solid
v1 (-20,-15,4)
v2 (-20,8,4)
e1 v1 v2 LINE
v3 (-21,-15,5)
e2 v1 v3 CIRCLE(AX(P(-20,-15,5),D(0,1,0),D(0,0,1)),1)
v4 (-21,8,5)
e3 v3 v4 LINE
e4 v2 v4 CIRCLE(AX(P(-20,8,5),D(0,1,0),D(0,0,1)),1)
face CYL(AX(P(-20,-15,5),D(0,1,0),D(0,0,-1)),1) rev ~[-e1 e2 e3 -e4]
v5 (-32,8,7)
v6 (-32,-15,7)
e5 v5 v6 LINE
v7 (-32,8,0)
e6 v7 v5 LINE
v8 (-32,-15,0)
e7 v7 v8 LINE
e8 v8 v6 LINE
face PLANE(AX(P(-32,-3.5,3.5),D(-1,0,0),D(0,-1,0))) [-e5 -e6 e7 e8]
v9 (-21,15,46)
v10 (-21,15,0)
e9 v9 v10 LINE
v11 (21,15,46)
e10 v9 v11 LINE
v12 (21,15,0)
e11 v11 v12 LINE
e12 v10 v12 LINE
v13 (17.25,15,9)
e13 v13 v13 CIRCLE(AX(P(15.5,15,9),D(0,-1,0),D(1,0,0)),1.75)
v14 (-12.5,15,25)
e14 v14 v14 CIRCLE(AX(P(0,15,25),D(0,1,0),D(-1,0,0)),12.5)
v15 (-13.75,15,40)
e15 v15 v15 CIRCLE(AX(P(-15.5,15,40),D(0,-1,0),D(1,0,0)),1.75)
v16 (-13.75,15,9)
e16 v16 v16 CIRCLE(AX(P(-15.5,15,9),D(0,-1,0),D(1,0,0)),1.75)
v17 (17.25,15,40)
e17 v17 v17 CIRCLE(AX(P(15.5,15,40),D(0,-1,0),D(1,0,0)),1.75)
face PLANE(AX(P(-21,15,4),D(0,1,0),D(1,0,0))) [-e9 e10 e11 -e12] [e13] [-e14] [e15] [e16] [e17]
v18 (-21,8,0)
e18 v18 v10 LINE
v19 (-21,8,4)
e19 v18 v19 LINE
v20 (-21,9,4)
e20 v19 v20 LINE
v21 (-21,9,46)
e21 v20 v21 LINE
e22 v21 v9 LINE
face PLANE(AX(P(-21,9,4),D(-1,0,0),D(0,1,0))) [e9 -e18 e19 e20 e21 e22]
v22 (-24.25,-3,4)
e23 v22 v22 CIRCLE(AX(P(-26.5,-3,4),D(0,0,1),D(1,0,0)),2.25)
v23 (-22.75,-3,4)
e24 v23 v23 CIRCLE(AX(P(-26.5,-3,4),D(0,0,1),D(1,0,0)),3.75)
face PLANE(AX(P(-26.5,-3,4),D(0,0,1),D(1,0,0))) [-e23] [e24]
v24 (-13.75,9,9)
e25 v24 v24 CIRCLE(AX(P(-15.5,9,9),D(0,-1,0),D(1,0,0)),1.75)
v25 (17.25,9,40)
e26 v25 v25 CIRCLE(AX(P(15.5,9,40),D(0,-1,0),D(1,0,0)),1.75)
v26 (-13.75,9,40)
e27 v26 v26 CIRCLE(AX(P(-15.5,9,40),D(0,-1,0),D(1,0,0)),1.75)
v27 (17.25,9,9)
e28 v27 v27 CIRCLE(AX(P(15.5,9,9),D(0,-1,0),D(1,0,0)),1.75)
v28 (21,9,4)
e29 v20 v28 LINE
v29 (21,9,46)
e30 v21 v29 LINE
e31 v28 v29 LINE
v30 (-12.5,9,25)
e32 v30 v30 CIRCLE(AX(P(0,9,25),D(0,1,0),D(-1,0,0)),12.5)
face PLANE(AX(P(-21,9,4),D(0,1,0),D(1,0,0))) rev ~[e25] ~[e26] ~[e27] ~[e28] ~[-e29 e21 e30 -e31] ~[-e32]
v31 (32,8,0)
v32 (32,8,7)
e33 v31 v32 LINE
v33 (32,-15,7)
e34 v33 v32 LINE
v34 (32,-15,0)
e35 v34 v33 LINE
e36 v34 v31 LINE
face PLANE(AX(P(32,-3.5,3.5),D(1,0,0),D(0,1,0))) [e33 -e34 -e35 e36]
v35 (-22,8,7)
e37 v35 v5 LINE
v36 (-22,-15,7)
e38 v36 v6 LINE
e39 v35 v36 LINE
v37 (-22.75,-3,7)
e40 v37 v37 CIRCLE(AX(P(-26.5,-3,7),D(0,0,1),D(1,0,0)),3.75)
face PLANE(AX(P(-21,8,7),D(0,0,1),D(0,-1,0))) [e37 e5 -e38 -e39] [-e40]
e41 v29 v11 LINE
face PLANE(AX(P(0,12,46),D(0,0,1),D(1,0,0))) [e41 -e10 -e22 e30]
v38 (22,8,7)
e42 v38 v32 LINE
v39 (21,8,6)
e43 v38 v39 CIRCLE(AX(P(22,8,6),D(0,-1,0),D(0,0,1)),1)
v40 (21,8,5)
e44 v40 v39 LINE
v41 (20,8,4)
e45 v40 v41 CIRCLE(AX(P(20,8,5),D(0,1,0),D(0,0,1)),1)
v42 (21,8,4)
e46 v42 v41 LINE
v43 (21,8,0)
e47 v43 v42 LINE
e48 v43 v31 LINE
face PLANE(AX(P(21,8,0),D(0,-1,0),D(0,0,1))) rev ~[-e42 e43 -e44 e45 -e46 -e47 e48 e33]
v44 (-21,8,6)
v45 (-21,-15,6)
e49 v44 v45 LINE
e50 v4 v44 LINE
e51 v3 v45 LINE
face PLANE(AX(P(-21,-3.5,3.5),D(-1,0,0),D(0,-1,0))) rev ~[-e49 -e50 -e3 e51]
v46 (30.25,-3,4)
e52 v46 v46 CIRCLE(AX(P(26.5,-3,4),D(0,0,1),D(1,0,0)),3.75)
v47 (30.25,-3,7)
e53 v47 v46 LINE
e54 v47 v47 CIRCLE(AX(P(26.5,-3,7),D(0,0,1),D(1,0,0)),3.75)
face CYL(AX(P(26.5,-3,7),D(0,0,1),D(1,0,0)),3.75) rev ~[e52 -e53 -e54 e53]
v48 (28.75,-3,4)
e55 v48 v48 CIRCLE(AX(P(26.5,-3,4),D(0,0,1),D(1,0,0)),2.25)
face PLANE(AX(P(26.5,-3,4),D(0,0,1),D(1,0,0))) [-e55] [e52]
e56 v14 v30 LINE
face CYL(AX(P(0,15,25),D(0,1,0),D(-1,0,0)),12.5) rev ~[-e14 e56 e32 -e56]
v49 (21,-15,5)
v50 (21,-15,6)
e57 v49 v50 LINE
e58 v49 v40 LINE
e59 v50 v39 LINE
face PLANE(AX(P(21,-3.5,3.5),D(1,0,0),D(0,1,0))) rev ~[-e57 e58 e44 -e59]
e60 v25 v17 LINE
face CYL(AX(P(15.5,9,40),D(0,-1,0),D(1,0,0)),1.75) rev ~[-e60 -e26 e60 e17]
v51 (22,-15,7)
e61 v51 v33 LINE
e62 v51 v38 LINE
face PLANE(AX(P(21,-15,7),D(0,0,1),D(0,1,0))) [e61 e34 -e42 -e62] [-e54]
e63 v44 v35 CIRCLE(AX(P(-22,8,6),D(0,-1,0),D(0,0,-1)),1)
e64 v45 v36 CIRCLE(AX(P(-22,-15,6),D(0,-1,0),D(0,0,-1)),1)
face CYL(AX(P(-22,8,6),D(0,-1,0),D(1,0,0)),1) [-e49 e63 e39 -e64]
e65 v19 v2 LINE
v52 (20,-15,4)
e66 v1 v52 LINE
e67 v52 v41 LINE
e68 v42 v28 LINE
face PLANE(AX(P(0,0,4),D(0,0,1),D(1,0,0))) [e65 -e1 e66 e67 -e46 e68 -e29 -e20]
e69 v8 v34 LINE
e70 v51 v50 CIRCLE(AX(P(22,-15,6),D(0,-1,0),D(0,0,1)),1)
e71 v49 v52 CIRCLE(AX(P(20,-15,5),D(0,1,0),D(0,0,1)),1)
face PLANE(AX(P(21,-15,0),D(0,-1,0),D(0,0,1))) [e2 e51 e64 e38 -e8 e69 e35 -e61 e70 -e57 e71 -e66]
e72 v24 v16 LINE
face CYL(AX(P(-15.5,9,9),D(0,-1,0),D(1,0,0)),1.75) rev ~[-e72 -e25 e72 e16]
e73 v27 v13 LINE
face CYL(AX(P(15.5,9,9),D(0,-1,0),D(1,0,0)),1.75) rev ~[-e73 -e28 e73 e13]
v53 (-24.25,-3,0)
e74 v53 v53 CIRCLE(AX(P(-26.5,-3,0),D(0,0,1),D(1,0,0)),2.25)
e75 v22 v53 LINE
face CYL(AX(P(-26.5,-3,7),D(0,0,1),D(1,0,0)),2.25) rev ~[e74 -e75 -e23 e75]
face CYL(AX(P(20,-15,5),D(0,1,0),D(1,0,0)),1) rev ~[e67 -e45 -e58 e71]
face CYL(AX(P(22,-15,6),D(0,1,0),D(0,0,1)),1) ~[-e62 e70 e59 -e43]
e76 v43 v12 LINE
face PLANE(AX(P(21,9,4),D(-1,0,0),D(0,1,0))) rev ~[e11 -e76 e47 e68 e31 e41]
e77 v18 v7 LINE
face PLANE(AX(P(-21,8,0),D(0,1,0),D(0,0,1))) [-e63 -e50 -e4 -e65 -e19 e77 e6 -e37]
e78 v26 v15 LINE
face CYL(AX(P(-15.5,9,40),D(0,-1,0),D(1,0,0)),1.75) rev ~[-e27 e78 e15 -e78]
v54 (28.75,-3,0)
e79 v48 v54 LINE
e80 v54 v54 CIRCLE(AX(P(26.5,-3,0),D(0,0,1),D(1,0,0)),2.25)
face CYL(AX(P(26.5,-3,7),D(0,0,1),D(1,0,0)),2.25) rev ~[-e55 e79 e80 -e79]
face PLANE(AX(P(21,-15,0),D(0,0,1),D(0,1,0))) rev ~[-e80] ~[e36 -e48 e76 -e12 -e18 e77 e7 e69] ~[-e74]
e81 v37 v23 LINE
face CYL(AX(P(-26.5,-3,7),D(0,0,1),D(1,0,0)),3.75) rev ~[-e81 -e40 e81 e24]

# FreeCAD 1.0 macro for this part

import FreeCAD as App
import Part
import Sketcher

V = App.Vector
Q = App.Units.Quantity


def edges_at(feature, points):
    """Names of the edges that pass closest to the given points."""
    edges = feature.Shape.Edges
    near = lambda p: min(range(len(edges)), key=lambda i: edges[i].distToShape(Part.Vertex(*p))[0])
    return sorted({f"Edge{near(p) + 1}" for p in points})

doc = App.newDocument("Part")
body = doc.addObject("PartDesign::Body", "Body")

# Sketch on XY plane
sketch1 = doc.addObject("Sketcher::SketchObject", "Sketch")
body.addObject(sketch1)
sketch1.AttachmentSupport = (doc.XY_Plane, [""])
sketch1.MapMode = "FlatFace"
sketch1.addGeometry([
    Part.LineSegment(V(-21, 15, 0), V(-21, -15, 0)),
    Part.LineSegment(V(-21, -15, 0), V(21, -15, 0)),
    Part.LineSegment(V(21, -15, 0), V(21, 15, 0)),
    Part.LineSegment(V(21, 15, 0), V(-21, 15, 0)),
], False)
sketch1.addConstraint([
    Sketcher.Constraint("Coincident", 0, 2, 1, 1),
    Sketcher.Constraint("Coincident", 1, 2, 2, 1),
    Sketcher.Constraint("Coincident", 2, 2, 3, 1),
    Sketcher.Constraint("Coincident", 3, 2, 0, 1),
    Sketcher.Constraint("Vertical", 0),
    Sketcher.Constraint("Horizontal", 1),
    Sketcher.Constraint("Vertical", 2),
    Sketcher.Constraint("Horizontal", 3),
    Sketcher.Constraint("Symmetric", 0, 2, 2, 2, -1, 1),
    Sketcher.Constraint("DistanceX", 1, 1, 1, 2, Q("42 mm")),
    Sketcher.Constraint("DistanceY", 0, 2, 0, 1, Q("30 mm")),
])
pad1 = doc.addObject("PartDesign::Pad", "Pad")
body.addObject(pad1)
pad1.Profile = sketch1
pad1.Length = 4

# Sketch on XY plane
sketch2 = doc.addObject("Sketcher::SketchObject", "Sketch001")
body.addObject(sketch2)
sketch2.AttachmentSupport = (doc.XY_Plane, [""])
sketch2.MapMode = "FlatFace"
sketch2.AttachmentOffset = App.Placement(V(0, 0, 4), App.Rotation())
sketch2.addGeometry([
    Part.LineSegment(V(-21, 15, 0), V(-21, 9, 0)),
    Part.LineSegment(V(-21, 9, 0), V(21, 9, 0)),
    Part.LineSegment(V(21, 9, 0), V(21, 15, 0)),
    Part.LineSegment(V(21, 15, 0), V(-21, 15, 0)),
], False)
sketch2.addConstraint([
    Sketcher.Constraint("Coincident", 0, 2, 1, 1),
    Sketcher.Constraint("Coincident", 1, 2, 2, 1),
    Sketcher.Constraint("Coincident", 2, 2, 3, 1),
    Sketcher.Constraint("Coincident", 3, 2, 0, 1),
    Sketcher.Constraint("Vertical", 0),
    Sketcher.Constraint("Horizontal", 1),
    Sketcher.Constraint("Vertical", 2),
    Sketcher.Constraint("Horizontal", 3),
    Sketcher.Constraint("DistanceX", 1, 1, 1, 2, Q("42 mm")),
    Sketcher.Constraint("DistanceY", 0, 2, 0, 1, Q("6 mm")),
    Sketcher.Constraint("DistanceX", 0, 2, -1, 1, Q("21 mm")),
    Sketcher.Constraint("DistanceY", -1, 1, 0, 2, Q("9 mm")),
])
pad2 = doc.addObject("PartDesign::Pad", "Pad001")
body.addObject(pad2)
pad2.Profile = sketch2
pad2.Length = 42

# Sketch on XZ plane
sketch3 = doc.addObject("Sketcher::SketchObject", "Sketch002")
body.addObject(sketch3)
sketch3.AttachmentSupport = (doc.XZ_Plane, [""])
sketch3.MapMode = "FlatFace"
sketch3.AttachmentOffset = App.Placement(V(0, 0, -15), App.Rotation())
sketch3.addGeometry(Part.Circle(V(0, 25, 0), V(0, 0, 1), 12), False)
sketch3.addConstraint([
    Sketcher.Constraint("PointOnObject", 0, 3, -2),
    Sketcher.Constraint("Diameter", 0, Q("25 mm")),
    Sketcher.Constraint("DistanceY", -1, 1, 0, 3, Q("25 mm")),
])
pocket1 = doc.addObject("PartDesign::Pocket", "Pocket")
body.addObject(pocket1)
pocket1.Profile = sketch3
pocket1.Length = 6
pocket1.Reversed = True

# Sketch on XZ plane
sketch4 = doc.addObject("Sketcher::SketchObject", "Sketch003")
body.addObject(sketch4)
sketch4.AttachmentSupport = (doc.XZ_Plane, [""])
sketch4.MapMode = "FlatFace"
sketch4.AttachmentOffset = App.Placement(V(0, 0, -9), App.Rotation())
sketch4.addGeometry([
    Part.Circle(V(15.5, 9, 0), V(0, 0, 1), 1.8),
    Part.Circle(V(-15.5, 9, 0), V(0, 0, 1), 1.8),
    Part.Circle(V(15.5, 40, 0), V(0, 0, 1), 1.8),
    Part.Circle(V(-15.5, 40, 0), V(0, 0, 1), 1.8),
], False)
sketch4.addConstraint([
    Sketcher.Constraint("Equal", 0, 1),
    Sketcher.Constraint("Equal", 1, 2),
    Sketcher.Constraint("Equal", 2, 3),
    Sketcher.Constraint("Symmetric", 0, 3, 1, 3, -2),
    Sketcher.Constraint("Symmetric", 2, 3, 3, 3, -2),
    Sketcher.Constraint("Vertical", 0, 3, 2, 3),
    Sketcher.Constraint("Diameter", 0, Q("3.5 mm")),
    Sketcher.Constraint("DistanceY", -1, 1, 0, 3, Q("9 mm")),
    Sketcher.Constraint("DistanceY", -1, 1, 2, 3, Q("40 mm")),
    Sketcher.Constraint("DistanceX", 1, 3, 0, 3, Q("31 mm")),
])
pocket2 = doc.addObject("PartDesign::Pocket", "Pocket001")
body.addObject(pocket2)
pocket2.Profile = sketch4
pocket2.Length = 6

# Sketch on YZ plane
sketch5 = doc.addObject("Sketcher::SketchObject", "Sketch004")
body.addObject(sketch5)
sketch5.AttachmentSupport = (doc.YZ_Plane, [""])
sketch5.MapMode = "FlatFace"
sketch5.AttachmentOffset = App.Placement(V(0, 0, -21), App.Rotation())
sketch5.addGeometry([
    Part.LineSegment(V(8, 7, 0), V(8, 0, 0)),
    Part.LineSegment(V(8, 0, 0), V(-15, 0, 0)),
    Part.LineSegment(V(-15, 0, 0), V(-15, 7, 0)),
    Part.LineSegment(V(-15, 7, 0), V(8, 7, 0)),
], False)
sketch5.addConstraint([
    Sketcher.Constraint("Coincident", 0, 2, 1, 1),
    Sketcher.Constraint("Coincident", 1, 2, 2, 1),
    Sketcher.Constraint("Coincident", 2, 2, 3, 1),
    Sketcher.Constraint("Coincident", 3, 2, 0, 1),
    Sketcher.Constraint("Vertical", 0),
    Sketcher.Constraint("Horizontal", 1),
    Sketcher.Constraint("Vertical", 2),
    Sketcher.Constraint("Horizontal", 3),
    Sketcher.Constraint("PointOnObject", 0, 2, -1),
    Sketcher.Constraint("DistanceX", 1, 2, 1, 1, Q("23 mm")),
    Sketcher.Constraint("DistanceY", 0, 2, 0, 1, Q("7 mm")),
    Sketcher.Constraint("DistanceX", -1, 1, 0, 2, Q("8 mm")),
])
pad3 = doc.addObject("PartDesign::Pad", "Pad002")
body.addObject(pad3)
pad3.Profile = sketch5
pad3.Length = 11
pad3.Reversed = True

# Sketch on YZ plane
sketch6 = doc.addObject("Sketcher::SketchObject", "Sketch005")
body.addObject(sketch6)
sketch6.AttachmentSupport = (doc.YZ_Plane, [""])
sketch6.MapMode = "FlatFace"
sketch6.AttachmentOffset = App.Placement(V(0, 0, 21), App.Rotation())
sketch6.addGeometry([
    Part.LineSegment(V(-15, 7, 0), V(-15, 0, 0)),
    Part.LineSegment(V(-15, 0, 0), V(8, 0, 0)),
    Part.LineSegment(V(8, 0, 0), V(8, 7, 0)),
    Part.LineSegment(V(8, 7, 0), V(-15, 7, 0)),
], False)
sketch6.addConstraint([
    Sketcher.Constraint("Coincident", 0, 2, 1, 1),
    Sketcher.Constraint("Coincident", 1, 2, 2, 1),
    Sketcher.Constraint("Coincident", 2, 2, 3, 1),
    Sketcher.Constraint("Coincident", 3, 2, 0, 1),
    Sketcher.Constraint("Vertical", 0),
    Sketcher.Constraint("Horizontal", 1),
    Sketcher.Constraint("Vertical", 2),
    Sketcher.Constraint("Horizontal", 3),
    Sketcher.Constraint("PointOnObject", 0, 2, -1),
    Sketcher.Constraint("DistanceX", 1, 1, 1, 2, Q("23 mm")),
    Sketcher.Constraint("DistanceY", 0, 2, 0, 1, Q("7 mm")),
    Sketcher.Constraint("DistanceX", 0, 2, -1, 1, Q("15 mm")),
])
pad4 = doc.addObject("PartDesign::Pad", "Pad003")
body.addObject(pad4)
pad4.Profile = sketch6
pad4.Length = 11

# Sketch on XY plane
sketch7 = doc.addObject("Sketcher::SketchObject", "Sketch006")
body.addObject(sketch7)
sketch7.AttachmentSupport = (doc.XY_Plane, [""])
sketch7.MapMode = "FlatFace"
sketch7.AttachmentOffset = App.Placement(V(0, 0, 7), App.Rotation())
sketch7.addGeometry([
    Part.Circle(V(-26.5, -3, 0), V(0, 0, 1), 2.2),
    Part.Circle(V(26.5, -3, 0), V(0, 0, 1), 2.2),
], False)
sketch7.addConstraint([
    Sketcher.Constraint("Equal", 0, 1),
    Sketcher.Constraint("Symmetric", 0, 3, 1, 3, -2),
    Sketcher.Constraint("Diameter", 0, Q("4.5 mm")),
    Sketcher.Constraint("DistanceY", 0, 3, -1, 1, Q("3 mm")),
    Sketcher.Constraint("DistanceX", 0, 3, 1, 3, Q("53 mm")),
])
pocket3 = doc.addObject("PartDesign::Pocket", "Pocket002")
body.addObject(pocket3)
pocket3.Profile = sketch7
pocket3.Length = 10

# Sketch on XY plane
sketch8 = doc.addObject("Sketcher::SketchObject", "Sketch007")
body.addObject(sketch8)
sketch8.AttachmentSupport = (doc.XY_Plane, [""])
sketch8.MapMode = "FlatFace"
sketch8.AttachmentOffset = App.Placement(V(0, 0, 7), App.Rotation())
sketch8.addGeometry([
    Part.Circle(V(-26.5, -3, 0), V(0, 0, 1), 3.8),
    Part.Circle(V(26.5, -3, 0), V(0, 0, 1), 3.8),
], False)
sketch8.addConstraint([
    Sketcher.Constraint("Equal", 0, 1),
    Sketcher.Constraint("Symmetric", 0, 3, 1, 3, -2),
    Sketcher.Constraint("Diameter", 0, Q("7.5 mm")),
    Sketcher.Constraint("DistanceY", 0, 3, -1, 1, Q("3 mm")),
    Sketcher.Constraint("DistanceX", 0, 3, 1, 3, Q("53 mm")),
])
pocket4 = doc.addObject("PartDesign::Pocket", "Pocket003")
body.addObject(pocket4)
pocket4.Profile = sketch8
pocket4.Length = 3
doc.recompute()

fillet = doc.addObject("PartDesign::Fillet", "Fillet")
body.addObject(fillet)
fillet.Base = (pocket4, edges_at(pocket4, [
    (-21, -3.5, 7),
    (21, -3.5, 7),
    (21, -3.5, 4),
    (-21, -3.5, 4),
]))
fillet.Radius = 1

doc.recompute()
